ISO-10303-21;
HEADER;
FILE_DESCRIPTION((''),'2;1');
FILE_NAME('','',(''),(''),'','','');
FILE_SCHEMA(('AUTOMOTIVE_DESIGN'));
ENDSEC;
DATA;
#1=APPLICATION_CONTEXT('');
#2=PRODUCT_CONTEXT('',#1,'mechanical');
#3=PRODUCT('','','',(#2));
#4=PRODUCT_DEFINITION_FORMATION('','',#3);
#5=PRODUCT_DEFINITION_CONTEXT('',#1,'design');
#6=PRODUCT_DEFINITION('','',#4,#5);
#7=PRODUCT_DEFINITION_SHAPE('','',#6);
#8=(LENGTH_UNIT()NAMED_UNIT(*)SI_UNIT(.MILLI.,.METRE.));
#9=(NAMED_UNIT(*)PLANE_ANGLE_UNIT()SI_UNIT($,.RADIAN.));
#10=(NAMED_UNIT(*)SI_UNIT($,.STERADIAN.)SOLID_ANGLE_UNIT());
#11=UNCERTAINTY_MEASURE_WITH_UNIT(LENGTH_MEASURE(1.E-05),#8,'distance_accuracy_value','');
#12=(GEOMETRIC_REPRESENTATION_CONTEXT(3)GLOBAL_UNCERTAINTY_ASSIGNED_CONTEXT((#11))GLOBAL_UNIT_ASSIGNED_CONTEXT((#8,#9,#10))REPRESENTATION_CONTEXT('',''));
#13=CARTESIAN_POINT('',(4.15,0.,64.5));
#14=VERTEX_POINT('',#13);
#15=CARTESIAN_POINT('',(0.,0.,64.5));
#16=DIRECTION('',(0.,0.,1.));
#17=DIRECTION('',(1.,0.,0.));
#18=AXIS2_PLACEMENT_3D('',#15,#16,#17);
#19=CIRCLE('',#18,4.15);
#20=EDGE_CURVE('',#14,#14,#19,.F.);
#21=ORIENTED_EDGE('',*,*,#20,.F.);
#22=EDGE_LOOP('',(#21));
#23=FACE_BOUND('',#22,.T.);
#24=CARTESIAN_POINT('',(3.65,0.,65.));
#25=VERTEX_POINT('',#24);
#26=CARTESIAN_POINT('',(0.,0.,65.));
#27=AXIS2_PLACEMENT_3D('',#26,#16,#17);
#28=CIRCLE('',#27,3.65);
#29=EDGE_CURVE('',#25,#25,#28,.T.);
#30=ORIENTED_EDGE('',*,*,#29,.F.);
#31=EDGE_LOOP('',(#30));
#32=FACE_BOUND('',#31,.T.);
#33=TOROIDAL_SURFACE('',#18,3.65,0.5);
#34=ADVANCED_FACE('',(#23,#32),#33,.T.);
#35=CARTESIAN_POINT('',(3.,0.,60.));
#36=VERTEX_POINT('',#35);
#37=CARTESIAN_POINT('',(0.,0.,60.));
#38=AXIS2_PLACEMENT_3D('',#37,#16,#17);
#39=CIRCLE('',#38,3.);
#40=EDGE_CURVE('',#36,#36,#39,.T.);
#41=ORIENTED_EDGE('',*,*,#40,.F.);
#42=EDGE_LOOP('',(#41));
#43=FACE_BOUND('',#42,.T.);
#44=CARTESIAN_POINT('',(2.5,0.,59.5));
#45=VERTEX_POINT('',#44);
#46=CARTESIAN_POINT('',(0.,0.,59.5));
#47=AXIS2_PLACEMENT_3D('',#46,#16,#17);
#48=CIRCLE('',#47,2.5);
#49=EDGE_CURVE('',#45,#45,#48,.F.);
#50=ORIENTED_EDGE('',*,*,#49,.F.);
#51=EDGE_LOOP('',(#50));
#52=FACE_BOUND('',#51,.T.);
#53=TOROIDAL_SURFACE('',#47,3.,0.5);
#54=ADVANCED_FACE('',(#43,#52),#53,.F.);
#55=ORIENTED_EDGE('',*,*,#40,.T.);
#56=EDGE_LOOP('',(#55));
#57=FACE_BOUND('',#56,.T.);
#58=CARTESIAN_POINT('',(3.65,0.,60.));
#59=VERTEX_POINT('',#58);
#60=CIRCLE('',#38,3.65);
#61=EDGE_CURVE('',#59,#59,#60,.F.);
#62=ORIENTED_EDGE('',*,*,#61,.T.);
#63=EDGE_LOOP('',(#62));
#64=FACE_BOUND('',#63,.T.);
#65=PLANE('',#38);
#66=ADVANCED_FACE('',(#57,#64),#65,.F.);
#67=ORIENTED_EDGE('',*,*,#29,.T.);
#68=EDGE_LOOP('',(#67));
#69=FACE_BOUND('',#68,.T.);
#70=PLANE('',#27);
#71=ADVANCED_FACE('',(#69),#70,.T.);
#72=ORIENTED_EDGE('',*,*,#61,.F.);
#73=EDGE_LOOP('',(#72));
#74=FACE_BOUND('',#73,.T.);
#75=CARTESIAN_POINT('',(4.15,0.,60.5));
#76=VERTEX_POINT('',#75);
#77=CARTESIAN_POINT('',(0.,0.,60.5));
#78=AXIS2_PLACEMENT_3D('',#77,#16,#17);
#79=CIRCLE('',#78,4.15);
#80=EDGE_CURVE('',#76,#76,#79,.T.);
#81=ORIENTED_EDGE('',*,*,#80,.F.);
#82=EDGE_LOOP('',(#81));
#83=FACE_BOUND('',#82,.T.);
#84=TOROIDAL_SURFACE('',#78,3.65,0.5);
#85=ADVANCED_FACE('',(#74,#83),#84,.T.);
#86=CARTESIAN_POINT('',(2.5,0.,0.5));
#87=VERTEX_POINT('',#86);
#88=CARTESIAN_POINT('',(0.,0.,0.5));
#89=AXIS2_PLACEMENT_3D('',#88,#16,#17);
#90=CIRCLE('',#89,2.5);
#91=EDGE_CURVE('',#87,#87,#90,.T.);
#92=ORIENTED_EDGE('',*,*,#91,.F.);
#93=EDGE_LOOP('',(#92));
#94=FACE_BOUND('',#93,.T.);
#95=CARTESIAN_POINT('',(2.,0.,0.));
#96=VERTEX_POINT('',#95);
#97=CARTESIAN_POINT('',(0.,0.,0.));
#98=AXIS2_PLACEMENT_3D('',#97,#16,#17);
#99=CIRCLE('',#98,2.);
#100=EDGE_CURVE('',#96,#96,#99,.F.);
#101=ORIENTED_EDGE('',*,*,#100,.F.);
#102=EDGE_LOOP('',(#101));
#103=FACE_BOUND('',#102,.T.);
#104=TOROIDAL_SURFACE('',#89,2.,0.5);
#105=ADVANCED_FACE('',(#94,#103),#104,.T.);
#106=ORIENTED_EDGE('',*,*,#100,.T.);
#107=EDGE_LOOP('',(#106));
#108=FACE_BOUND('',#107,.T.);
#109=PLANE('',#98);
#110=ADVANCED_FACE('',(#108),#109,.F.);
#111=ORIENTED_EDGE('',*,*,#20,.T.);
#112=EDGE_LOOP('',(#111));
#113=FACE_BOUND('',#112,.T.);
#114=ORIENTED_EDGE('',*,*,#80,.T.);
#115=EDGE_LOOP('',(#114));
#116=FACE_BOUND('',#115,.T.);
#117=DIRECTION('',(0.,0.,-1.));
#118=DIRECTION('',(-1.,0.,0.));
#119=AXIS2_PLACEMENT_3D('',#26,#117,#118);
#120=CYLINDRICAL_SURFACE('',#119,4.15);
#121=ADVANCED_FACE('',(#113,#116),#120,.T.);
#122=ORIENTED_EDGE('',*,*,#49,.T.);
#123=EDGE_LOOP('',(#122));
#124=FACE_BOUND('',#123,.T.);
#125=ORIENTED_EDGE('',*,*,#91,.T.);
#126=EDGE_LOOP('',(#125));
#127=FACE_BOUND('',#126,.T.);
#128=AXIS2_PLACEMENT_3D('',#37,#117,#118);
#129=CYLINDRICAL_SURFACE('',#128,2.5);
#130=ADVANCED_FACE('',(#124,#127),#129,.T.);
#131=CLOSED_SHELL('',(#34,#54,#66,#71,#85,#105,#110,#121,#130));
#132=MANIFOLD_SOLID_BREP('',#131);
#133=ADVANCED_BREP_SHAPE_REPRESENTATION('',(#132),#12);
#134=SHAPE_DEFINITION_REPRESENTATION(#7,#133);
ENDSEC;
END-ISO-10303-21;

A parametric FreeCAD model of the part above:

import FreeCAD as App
import Part
import Sketcher
from FreeCAD import Vector


def edges_at(feature, points):
    """Names of the edges that pass closest to the given points."""
    edges = feature.Shape.Edges
    near = lambda p: min(range(len(edges)), key=lambda i: edges[i].distToShape(Part.Vertex(*p))[0])
    return sorted({f"Edge{near(p) + 1}" for p in points})

doc = App.newDocument("Part")
body = doc.addObject("PartDesign::Body", "Body")

# Sketch on XY plane
sketch1 = doc.addObject("Sketcher::SketchObject", "Sketch")
body.addObject(sketch1)
sketch1.AttachmentSupport = (doc.XY_Plane, [""])
sketch1.MapMode = "FlatFace"
sketch1.addGeometry(Part.Circle(Vector(0, 0, 0), Vector(0, 0, 1), 2.5), False)
sketch1.addConstraint([
    Sketcher.Constraint("Coincident", 0, 3, -1, 1),
    Sketcher.Constraint("Diameter", 0, 5.0),
])
pad1 = doc.addObject("PartDesign::Pad", "Pad")
body.addObject(pad1)
pad1.Profile = sketch1
pad1.Length = 60

# Sketch on XY plane
sketch2 = doc.addObject("Sketcher::SketchObject", "Sketch001")
body.addObject(sketch2)
sketch2.AttachmentSupport = (doc.XY_Plane, [""])
sketch2.MapMode = "FlatFace"
sketch2.AttachmentOffset = App.Placement(Vector(0, 0, 60), App.Rotation())
sketch2.addGeometry(Part.Circle(Vector(0, 0, 0), Vector(0, 0, 1), 4.2), False)
sketch2.addConstraint([
    Sketcher.Constraint("Coincident", 0, 3, -1, 1),
    Sketcher.Constraint("Diameter", 0, 8.3),
])
pad2 = doc.addObject("PartDesign::Pad", "Pad001")
body.addObject(pad2)
pad2.Profile = sketch2
pad2.Length = 5
doc.recompute()

fillet = doc.addObject("PartDesign::Fillet", "Fillet")
body.addObject(fillet)
fillet.Base = (pad2, edges_at(pad2, [
    (-2.5, 0, 0),
    (-2.5, 0, 60),
    (-4.15, 0, 60),
    (-4.15, 0, 65),
]))
fillet.Radius = 0.5

doc.recompute()
